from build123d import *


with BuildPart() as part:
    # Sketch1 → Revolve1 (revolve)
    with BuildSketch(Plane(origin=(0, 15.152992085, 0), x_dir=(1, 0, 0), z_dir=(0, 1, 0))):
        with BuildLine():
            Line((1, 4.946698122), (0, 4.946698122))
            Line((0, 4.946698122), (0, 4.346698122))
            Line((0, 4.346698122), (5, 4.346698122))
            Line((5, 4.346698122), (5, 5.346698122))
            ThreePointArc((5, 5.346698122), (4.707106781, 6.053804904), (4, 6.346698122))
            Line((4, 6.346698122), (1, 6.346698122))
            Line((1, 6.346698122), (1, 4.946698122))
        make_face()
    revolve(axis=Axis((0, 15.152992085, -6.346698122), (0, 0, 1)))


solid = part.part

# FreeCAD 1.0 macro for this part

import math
import FreeCAD as App
import Part
import Sketcher
from FreeCAD import Vector

doc = App.newDocument("Part")
body = doc.addObject("PartDesign::Body", "Body")

sketch1 = doc.addObject("Sketcher::SketchObject", "Sketch")
body.addObject(sketch1)
sketch1.AttachmentSupport = (doc.XZ_Plane, [""])
sketch1.MapMode = "FlatFace"
sketch1.AttachmentOffset = App.Placement(Vector(0, 0, -15.152992), App.Rotation())
sketch1.addGeometry(Part.LineSegment(Vector(1, -4.9, 0), Vector(0, -4.9, 0)), False)
sketch1.addGeometry(Part.LineSegment(Vector(0, -4.9, 0), Vector(0, -4.3, 0)), False)
sketch1.addGeometry(Part.LineSegment(Vector(0, -4.3, 0), Vector(5, -4.3, 0)), False)
sketch1.addGeometry(Part.LineSegment(Vector(5, -4.3, 0), Vector(5, -5.3, 0)), False)
sketch1.addGeometry(Part.ArcOfCircle(Part.Circle(Vector(4, -5.3, 0), Vector(0, 0, 1), 1), math.radians(-90), math.radians(0)), False)
sketch1.addGeometry(Part.LineSegment(Vector(4, -6.3, 0), Vector(1, -6.3, 0)), False)
sketch1.addGeometry(Part.LineSegment(Vector(1, -6.3, 0), Vector(1, -4.9, 0)), False)
sketch1.addConstraint(Sketcher.Constraint("Coincident", 0, 2, 1, 1))
sketch1.addConstraint(Sketcher.Constraint("Coincident", 1, 2, 2, 1))
sketch1.addConstraint(Sketcher.Constraint("Coincident", 2, 2, 3, 1))
sketch1.addConstraint(Sketcher.Constraint("Tangent", 3, 2, 4, 2))
sketch1.addConstraint(Sketcher.Constraint("Tangent", 4, 1, 5, 1))
sketch1.addConstraint(Sketcher.Constraint("Coincident", 5, 2, 6, 1))
sketch1.addConstraint(Sketcher.Constraint("Coincident", 6, 2, 0, 1))
sketch1.addConstraint(Sketcher.Constraint("Horizontal", 0))
sketch1.addConstraint(Sketcher.Constraint("Vertical", 1))
sketch1.addConstraint(Sketcher.Constraint("Horizontal", 2))
sketch1.addConstraint(Sketcher.Constraint("Vertical", 3))
sketch1.addConstraint(Sketcher.Constraint("Horizontal", 5))
sketch1.addConstraint(Sketcher.Constraint("Vertical", 6))
sketch1.addConstraint(Sketcher.Constraint("PointOnObject", 0, 2, -2))
sketch1.addConstraint(Sketcher.Constraint("Equal", 0, 3))
sketch1.addConstraint(Sketcher.Constraint("Radius", 4, 1.0))
sketch1.addConstraint(Sketcher.Constraint("DistanceX", 0, 2, 0, 1, 1.0))
sketch1.addConstraint(Sketcher.Constraint("DistanceX", 2, 1, 2, 2, 5.0))
sketch1.addConstraint(Sketcher.Constraint("DistanceY", 1, 1, 1, 2, 0.6))
sketch1.addConstraint(Sketcher.Constraint("DistanceY", 4, 3, -1, 1, 5.346698))
revolution = doc.addObject("PartDesign::Revolution", "Revolution")
body.addObject(revolution)
revolution.Profile = sketch1
revolution.ReferenceAxis = (sketch1, ["V_Axis"])
revolution.Angle = 360

doc.recompute()
